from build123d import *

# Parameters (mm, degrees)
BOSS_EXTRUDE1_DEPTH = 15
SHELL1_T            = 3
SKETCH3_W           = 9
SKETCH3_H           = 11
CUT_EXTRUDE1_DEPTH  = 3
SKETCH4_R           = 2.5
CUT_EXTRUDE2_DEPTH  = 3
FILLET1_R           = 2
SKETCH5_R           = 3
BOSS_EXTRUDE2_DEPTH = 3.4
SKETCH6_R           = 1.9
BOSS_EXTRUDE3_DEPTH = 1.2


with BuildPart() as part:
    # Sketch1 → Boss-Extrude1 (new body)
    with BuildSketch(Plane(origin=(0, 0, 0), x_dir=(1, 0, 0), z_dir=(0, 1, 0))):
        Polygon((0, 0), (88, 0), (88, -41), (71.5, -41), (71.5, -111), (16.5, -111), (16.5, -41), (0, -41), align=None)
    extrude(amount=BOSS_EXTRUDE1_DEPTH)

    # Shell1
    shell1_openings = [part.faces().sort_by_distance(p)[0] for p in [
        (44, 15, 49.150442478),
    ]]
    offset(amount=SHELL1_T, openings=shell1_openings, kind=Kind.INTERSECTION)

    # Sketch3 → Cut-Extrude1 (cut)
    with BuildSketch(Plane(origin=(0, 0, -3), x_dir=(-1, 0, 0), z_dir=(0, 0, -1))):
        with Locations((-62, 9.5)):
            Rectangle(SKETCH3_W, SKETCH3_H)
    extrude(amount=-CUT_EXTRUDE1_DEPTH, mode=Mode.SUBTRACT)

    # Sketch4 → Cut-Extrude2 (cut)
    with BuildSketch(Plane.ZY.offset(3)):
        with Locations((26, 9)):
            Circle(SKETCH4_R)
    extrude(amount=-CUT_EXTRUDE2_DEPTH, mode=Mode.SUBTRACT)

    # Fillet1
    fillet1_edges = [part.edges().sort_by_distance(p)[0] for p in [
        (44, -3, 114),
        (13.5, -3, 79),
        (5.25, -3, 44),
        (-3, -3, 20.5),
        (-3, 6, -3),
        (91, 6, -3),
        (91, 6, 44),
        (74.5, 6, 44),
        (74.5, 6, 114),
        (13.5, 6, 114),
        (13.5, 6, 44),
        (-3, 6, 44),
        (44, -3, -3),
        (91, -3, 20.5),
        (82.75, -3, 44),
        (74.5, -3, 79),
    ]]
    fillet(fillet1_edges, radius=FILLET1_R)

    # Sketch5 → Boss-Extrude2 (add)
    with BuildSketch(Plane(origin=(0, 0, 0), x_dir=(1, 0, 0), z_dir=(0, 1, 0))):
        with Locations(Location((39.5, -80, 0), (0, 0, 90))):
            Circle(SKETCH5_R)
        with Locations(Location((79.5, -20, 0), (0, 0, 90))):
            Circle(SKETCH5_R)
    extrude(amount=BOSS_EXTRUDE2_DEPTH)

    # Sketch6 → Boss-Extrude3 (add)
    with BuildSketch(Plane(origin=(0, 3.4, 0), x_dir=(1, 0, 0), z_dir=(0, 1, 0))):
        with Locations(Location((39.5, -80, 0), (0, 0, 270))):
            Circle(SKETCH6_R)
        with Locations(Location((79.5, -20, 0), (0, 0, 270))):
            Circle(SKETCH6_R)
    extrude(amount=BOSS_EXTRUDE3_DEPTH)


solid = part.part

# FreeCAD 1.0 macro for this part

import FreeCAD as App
import Part
import Sketcher


def edges_at(feature, points):
    """Names of the edges that pass closest to the given points."""
    edges = feature.Shape.Edges
    near = lambda p: min(range(len(edges)), key=lambda i: edges[i].distToShape(Part.Vertex(*p))[0])
    return sorted({f"Edge{near(p) + 1}" for p in points})


def faces_at(feature, points):
    """Names of the faces that lie closest to the given points."""
    faces = feature.Shape.Faces
    near = lambda p: min(range(len(faces)), key=lambda i: faces[i].distToShape(Part.Vertex(*p))[0])
    return sorted({f"Face{near(p) + 1}" for p in points})

doc = App.newDocument("Part")
body = doc.addObject("PartDesign::Body", "Body")

# Sketch on XZ plane
sketch1 = doc.addObject("Sketcher::SketchObject", "Sketch")
body.addObject(sketch1)
sketch1.AttachmentSupport = (doc.XZ_Plane, [""])
sketch1.MapMode = "FlatFace"
sketch1.addGeometry([
    Part.LineSegment(App.Vector(88, 0, 0), App.Vector(0, 0, 0)),  # 0
    Part.LineSegment(App.Vector(0, 0, 0), App.Vector(0, 41, 0)),  # 1
    Part.LineSegment(App.Vector(0, 41, 0), App.Vector(16, 41, 0)),  # 2
    Part.LineSegment(App.Vector(16, 41, 0), App.Vector(16, 111, 0)),  # 3
    Part.LineSegment(App.Vector(16, 111, 0), App.Vector(72, 111, 0)),  # 4
    Part.LineSegment(App.Vector(72, 111, 0), App.Vector(72, 41, 0)),  # 5
    Part.LineSegment(App.Vector(72, 41, 0), App.Vector(88, 41, 0)),  # 6
    Part.LineSegment(App.Vector(88, 41, 0), App.Vector(88, 0, 0)),  # 7
], False)
sketch1.addConstraint([
    Sketcher.Constraint("Coincident", 0, 2, 1, 1),
    Sketcher.Constraint("Coincident", 1, 2, 2, 1),
    Sketcher.Constraint("Coincident", 2, 2, 3, 1),
    Sketcher.Constraint("Coincident", 3, 2, 4, 1),
    Sketcher.Constraint("Coincident", 4, 2, 5, 1),
    Sketcher.Constraint("Coincident", 5, 2, 6, 1),
    Sketcher.Constraint("Coincident", 6, 2, 7, 1),
    Sketcher.Constraint("Coincident", 7, 2, 0, 1),
    Sketcher.Constraint("Horizontal", 0),
    Sketcher.Constraint("Vertical", 1),
    Sketcher.Constraint("Horizontal", 2),
    Sketcher.Constraint("Vertical", 3),
    Sketcher.Constraint("Horizontal", 4),
    Sketcher.Constraint("Vertical", 5),
    Sketcher.Constraint("Horizontal", 6),
    Sketcher.Constraint("Vertical", 7),
    Sketcher.Constraint("Coincident", 0, 2, -1, 1),
    Sketcher.Constraint("Horizontal", 2, 2, 5, 2),
    Sketcher.Constraint("Equal", 2, 6),
    Sketcher.Constraint("DistanceX", 0, 2, 0, 1, 88.0),
    Sketcher.Constraint("DistanceX", 4, 1, 4, 2, 55.0),
    Sketcher.Constraint("DistanceY", 1, 1, 1, 2, 41.0),
    Sketcher.Constraint("DistanceY", 3, 1, 3, 2, 70.0),
])
pad1 = doc.addObject("PartDesign::Pad", "Pad")
body.addObject(pad1)
pad1.Profile = sketch1
pad1.Length = 15
pad1.Reversed = True
doc.recompute()

thickness = doc.addObject("PartDesign::Thickness", "Thickness")
body.addObject(thickness)
thickness.Base = (pad1, faces_at(pad1, [(44, 15, 55.5)]))
thickness.Value = 3
thickness.Reversed = False
thickness.Join = "Intersection"

# Sketch on XY plane
sketch2 = doc.addObject("Sketcher::SketchObject", "Sketch001")
body.addObject(sketch2)
sketch2.AttachmentSupport = (doc.XY_Plane, [""])
sketch2.MapMode = "FlatFace"
sketch2.AttachmentOffset = App.Placement(App.Vector(0, 0, -3), App.Rotation())
sketch2.addGeometry([
    Part.LineSegment(App.Vector(66, 15, 0), App.Vector(66, 4, 0)),
    Part.LineSegment(App.Vector(66, 4, 0), App.Vector(58, 4, 0)),
    Part.LineSegment(App.Vector(58, 4, 0), App.Vector(58, 15, 0)),
    Part.LineSegment(App.Vector(58, 15, 0), App.Vector(66, 15, 0)),
], False)
sketch2.addConstraint([
    Sketcher.Constraint("Coincident", 0, 2, 1, 1),
    Sketcher.Constraint("Coincident", 1, 2, 2, 1),
    Sketcher.Constraint("Coincident", 2, 2, 3, 1),
    Sketcher.Constraint("Coincident", 3, 2, 0, 1),
    Sketcher.Constraint("Vertical", 0),
    Sketcher.Constraint("Horizontal", 1),
    Sketcher.Constraint("Vertical", 2),
    Sketcher.Constraint("Horizontal", 3),
    Sketcher.Constraint("DistanceX", 1, 2, 1, 1, 9.0),
    Sketcher.Constraint("DistanceY", 0, 2, 0, 1, 11.0),
    Sketcher.Constraint("DistanceY", -1, 1, 0, 2, 4.0),
    Sketcher.Constraint("DistanceX", -1, 1, 0, 2, 66.5),
])
pocket1 = doc.addObject("PartDesign::Pocket", "Pocket")
body.addObject(pocket1)
pocket1.Profile = sketch2
pocket1.Length = 3
pocket1.Reversed = True

# Sketch on YZ plane
sketch3 = doc.addObject("Sketcher::SketchObject", "Sketch002")
body.addObject(sketch3)
sketch3.AttachmentSupport = (doc.YZ_Plane, [""])
sketch3.MapMode = "FlatFace"
sketch3.AttachmentOffset = App.Placement(App.Vector(0, 0, -3), App.Rotation())
sketch3.addGeometry(Part.Circle(App.Vector(9, 26, 0), App.Vector(0, 0, 1), 2.5), False)
sketch3.addConstraint([
    Sketcher.Constraint("Diameter", 0, 5.0),
    Sketcher.Constraint("DistanceX", -1, 1, 0, 3, 9.0),
    Sketcher.Constraint("DistanceY", -1, 1, 0, 3, 26.0),
])
pocket2 = doc.addObject("PartDesign::Pocket", "Pocket001")
body.addObject(pocket2)
pocket2.Profile = sketch3
pocket2.Length = 3
pocket2.Reversed = True
doc.recompute()

fillet = doc.addObject("PartDesign::Fillet", "Fillet")
body.addObject(fillet)
fillet.Base = (pocket2, edges_at(pocket2, [
    (44, -3, 114),
    (13.5, -3, 79),
    (5.25, -3, 44),
    (-3, -3, 20.5),
    (-3, 6, -3),
    (91, 6, -3),
    (91, 6, 44),
    (74.5, 6, 44),
    (74.5, 6, 114),
    (13.5, 6, 114),
    (13.5, 6, 44),
    (-3, 6, 44),
    (44, -3, -3),
    (91, -3, 20.5),
    (82.75, -3, 44),
    (74.5, -3, 79),
]))
fillet.Radius = 2

# Sketch on XZ plane
sketch4 = doc.addObject("Sketcher::SketchObject", "Sketch003")
body.addObject(sketch4)
sketch4.AttachmentSupport = (doc.XZ_Plane, [""])
sketch4.MapMode = "FlatFace"
sketch4.addGeometry([
    Part.Circle(App.Vector(39.5, 80, 0), App.Vector(0, 0, 1), 3),
    Part.Circle(App.Vector(79.5, 20, 0), App.Vector(0, 0, 1), 3),
], False)
sketch4.addConstraint([
    Sketcher.Constraint("Equal", 0, 1),
    Sketcher.Constraint("Diameter", 0, 6.0),
    Sketcher.Constraint("DistanceY", -1, 1, 0, 3, 80.0),
    Sketcher.Constraint("DistanceY", -1, 1, 1, 3, 20.0),
    Sketcher.Constraint("DistanceX", 0, 3, 1, 3, 40.0),
    Sketcher.Constraint("DistanceX", -1, 1, 0, 3, 39.5),
])
pad2 = doc.addObject("PartDesign::Pad", "Pad001")
body.addObject(pad2)
pad2.Profile = sketch4
pad2.Length = 3.4
pad2.Reversed = True

# Sketch on XZ plane
sketch5 = doc.addObject("Sketcher::SketchObject", "Sketch004")
body.addObject(sketch5)
sketch5.AttachmentSupport = (doc.XZ_Plane, [""])
sketch5.MapMode = "FlatFace"
sketch5.AttachmentOffset = App.Placement(App.Vector(0, 0, -3.4), App.Rotation())
sketch5.addGeometry([
    Part.Circle(App.Vector(39.5, 80, 0), App.Vector(0, 0, 1), 1.9),
    Part.Circle(App.Vector(79.5, 20, 0), App.Vector(0, 0, 1), 1.9),
], False)
sketch5.addConstraint([
    Sketcher.Constraint("Equal", 0, 1),
    Sketcher.Constraint("Diameter", 0, 3.8),
    Sketcher.Constraint("DistanceY", -1, 1, 0, 3, 80.0),
    Sketcher.Constraint("DistanceY", -1, 1, 1, 3, 20.0),
    Sketcher.Constraint("DistanceX", 0, 3, 1, 3, 40.0),
    Sketcher.Constraint("DistanceX", -1, 1, 0, 3, 39.5),
])
pad3 = doc.addObject("PartDesign::Pad", "Pad002")
body.addObject(pad3)
pad3.Profile = sketch5
pad3.Length = 1.2
pad3.Reversed = True

doc.recompute()
